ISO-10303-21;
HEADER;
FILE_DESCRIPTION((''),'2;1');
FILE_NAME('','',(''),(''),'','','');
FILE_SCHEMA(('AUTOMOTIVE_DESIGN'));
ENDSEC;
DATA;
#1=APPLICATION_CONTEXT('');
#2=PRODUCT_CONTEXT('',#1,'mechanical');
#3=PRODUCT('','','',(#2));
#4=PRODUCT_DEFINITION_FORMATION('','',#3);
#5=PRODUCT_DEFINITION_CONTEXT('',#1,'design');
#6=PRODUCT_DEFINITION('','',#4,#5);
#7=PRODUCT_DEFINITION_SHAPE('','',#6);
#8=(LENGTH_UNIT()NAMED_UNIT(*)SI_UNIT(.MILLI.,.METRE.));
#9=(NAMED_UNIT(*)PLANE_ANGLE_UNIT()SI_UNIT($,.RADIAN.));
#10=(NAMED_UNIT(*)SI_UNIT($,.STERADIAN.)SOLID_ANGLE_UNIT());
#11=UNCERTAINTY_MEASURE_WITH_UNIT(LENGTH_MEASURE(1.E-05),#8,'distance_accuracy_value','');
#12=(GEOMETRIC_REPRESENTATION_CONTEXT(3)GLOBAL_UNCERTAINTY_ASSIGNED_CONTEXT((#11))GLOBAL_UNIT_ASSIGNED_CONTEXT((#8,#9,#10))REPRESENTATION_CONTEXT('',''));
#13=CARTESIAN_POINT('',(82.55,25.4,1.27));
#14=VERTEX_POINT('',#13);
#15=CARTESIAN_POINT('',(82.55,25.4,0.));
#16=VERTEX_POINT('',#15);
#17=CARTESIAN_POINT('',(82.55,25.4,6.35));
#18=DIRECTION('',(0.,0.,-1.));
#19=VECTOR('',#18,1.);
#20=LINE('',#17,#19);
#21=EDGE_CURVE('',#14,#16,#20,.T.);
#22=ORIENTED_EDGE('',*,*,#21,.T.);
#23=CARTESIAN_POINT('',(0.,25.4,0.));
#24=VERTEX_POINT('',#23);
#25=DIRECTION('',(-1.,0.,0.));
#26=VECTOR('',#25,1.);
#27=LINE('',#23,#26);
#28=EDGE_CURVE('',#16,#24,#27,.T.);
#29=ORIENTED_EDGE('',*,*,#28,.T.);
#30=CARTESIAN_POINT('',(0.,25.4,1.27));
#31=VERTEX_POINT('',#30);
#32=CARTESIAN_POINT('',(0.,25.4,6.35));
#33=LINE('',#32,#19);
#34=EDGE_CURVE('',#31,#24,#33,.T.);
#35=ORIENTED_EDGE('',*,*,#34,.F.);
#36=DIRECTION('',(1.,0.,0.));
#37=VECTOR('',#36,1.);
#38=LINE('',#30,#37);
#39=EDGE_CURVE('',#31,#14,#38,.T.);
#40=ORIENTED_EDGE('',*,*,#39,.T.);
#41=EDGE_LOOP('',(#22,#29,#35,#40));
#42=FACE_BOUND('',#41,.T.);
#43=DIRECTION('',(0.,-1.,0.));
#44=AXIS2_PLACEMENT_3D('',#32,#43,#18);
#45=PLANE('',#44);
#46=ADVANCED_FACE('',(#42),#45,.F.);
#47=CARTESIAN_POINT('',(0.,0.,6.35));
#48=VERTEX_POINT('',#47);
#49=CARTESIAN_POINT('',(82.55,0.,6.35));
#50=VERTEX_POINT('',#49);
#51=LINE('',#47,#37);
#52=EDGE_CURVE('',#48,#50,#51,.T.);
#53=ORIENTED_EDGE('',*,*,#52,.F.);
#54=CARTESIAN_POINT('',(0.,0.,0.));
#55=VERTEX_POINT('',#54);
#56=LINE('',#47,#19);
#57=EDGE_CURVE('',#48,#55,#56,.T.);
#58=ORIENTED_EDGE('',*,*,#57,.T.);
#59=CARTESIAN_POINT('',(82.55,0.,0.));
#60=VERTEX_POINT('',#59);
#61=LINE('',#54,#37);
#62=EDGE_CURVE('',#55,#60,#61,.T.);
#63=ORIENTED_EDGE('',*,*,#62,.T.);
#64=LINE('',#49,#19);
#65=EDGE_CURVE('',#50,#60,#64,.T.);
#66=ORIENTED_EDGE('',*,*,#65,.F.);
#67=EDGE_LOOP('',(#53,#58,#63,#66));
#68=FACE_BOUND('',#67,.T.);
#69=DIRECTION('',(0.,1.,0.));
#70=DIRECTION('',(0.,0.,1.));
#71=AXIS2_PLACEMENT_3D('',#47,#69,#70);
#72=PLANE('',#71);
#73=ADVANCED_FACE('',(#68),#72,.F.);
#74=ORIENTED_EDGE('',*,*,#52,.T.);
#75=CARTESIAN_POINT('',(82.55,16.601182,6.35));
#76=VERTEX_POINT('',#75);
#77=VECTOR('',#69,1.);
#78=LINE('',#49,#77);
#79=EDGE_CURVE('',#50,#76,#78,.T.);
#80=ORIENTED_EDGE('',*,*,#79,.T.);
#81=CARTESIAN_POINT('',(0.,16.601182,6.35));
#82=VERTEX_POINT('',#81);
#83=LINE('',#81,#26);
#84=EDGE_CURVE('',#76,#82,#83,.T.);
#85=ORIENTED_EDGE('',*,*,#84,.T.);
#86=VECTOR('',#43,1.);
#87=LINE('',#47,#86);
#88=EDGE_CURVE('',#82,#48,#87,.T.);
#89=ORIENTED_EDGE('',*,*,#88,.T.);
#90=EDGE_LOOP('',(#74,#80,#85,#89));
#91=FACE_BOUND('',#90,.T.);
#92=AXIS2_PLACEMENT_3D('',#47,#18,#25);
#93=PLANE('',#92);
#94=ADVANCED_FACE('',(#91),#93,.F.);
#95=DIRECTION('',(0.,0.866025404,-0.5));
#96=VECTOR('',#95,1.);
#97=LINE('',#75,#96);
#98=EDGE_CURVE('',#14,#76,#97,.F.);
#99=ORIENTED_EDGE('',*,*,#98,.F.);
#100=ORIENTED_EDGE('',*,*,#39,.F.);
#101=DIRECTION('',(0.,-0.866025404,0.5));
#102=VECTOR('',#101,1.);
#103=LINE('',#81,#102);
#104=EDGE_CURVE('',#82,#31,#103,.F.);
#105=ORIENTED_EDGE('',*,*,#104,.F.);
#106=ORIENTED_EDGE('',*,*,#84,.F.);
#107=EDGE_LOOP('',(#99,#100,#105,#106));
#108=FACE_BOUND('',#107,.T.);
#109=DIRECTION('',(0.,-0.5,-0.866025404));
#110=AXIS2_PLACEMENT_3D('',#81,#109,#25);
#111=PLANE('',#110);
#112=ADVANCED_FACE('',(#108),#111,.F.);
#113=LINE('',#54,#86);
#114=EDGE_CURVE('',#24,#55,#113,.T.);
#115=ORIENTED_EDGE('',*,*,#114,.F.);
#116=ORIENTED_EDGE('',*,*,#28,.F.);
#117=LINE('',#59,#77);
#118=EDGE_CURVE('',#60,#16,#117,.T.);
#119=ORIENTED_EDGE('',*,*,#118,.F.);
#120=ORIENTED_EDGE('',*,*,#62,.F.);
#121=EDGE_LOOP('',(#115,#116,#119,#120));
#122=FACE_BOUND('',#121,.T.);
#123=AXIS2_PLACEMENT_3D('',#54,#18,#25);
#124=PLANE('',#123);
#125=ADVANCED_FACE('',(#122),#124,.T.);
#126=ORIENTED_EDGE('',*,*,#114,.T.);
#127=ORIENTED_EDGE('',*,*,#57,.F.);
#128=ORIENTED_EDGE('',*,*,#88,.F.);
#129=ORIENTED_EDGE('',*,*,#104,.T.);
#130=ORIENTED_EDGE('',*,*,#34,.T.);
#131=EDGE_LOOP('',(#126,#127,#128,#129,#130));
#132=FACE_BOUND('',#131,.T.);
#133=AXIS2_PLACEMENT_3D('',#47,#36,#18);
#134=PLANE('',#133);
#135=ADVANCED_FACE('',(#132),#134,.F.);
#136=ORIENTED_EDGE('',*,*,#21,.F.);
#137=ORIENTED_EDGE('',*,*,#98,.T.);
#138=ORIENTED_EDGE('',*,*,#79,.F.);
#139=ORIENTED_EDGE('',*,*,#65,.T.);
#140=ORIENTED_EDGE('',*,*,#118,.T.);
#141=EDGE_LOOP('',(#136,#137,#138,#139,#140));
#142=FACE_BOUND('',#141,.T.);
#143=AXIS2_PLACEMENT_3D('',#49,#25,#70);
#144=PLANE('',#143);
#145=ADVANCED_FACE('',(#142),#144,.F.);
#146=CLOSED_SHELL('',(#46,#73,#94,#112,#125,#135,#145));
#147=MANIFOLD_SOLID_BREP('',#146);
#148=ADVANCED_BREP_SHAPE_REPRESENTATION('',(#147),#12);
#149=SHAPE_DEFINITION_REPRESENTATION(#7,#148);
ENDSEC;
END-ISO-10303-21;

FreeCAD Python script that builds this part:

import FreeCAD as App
import Part
import Sketcher

V = App.Vector
Q = App.Units.Quantity


def edges_at(feature, points):
    """Names of the edges that pass closest to the given points."""
    edges = feature.Shape.Edges
    near = lambda p: min(range(len(edges)), key=lambda i: edges[i].distToShape(Part.Vertex(*p))[0])
    return sorted({f"Edge{near(p) + 1}" for p in points})


def add_polygon(sketch, points):
    """Adds a closed chain of lines whose ends are joined by coincident constraints."""
    first, n = sketch.GeometryCount, len(points)
    for a, b in zip(points, points[1:] + points[:1]):
        sketch.addGeometry(Part.LineSegment(App.Vector(*a, 0), App.Vector(*b, 0)), False)
    for i in range(n):
        sketch.addConstraint(Sketcher.Constraint("Coincident", first + i, 2, first + (i + 1) % n, 1))

doc = App.newDocument("Part")
body = doc.addObject("PartDesign::Body", "Body")

# Sketch on XY plane
sketch1 = doc.addObject("Sketcher::SketchObject", "Sketch")
body.addObject(sketch1)
sketch1.AttachmentSupport = (doc.XY_Plane, [""])
sketch1.MapMode = "FlatFace"
add_polygon(sketch1, [(0, 25), (0, 0), (83, 0), (83, 25)])  # lines 0-3
sketch1.addConstraint([
    Sketcher.Constraint("Vertical", 0),
    Sketcher.Constraint("Horizontal", 1),
    Sketcher.Constraint("Vertical", 2),
    Sketcher.Constraint("Horizontal", 3),
    Sketcher.Constraint("Coincident", 0, 2, -1, 1),
    Sketcher.Constraint("DistanceY", 0, 2, 0, 1, Q("1 in")),
    Sketcher.Constraint("DistanceX", 1, 1, 1, 2, Q("3.25 in")),
])
pad1 = doc.addObject("PartDesign::Pad", "Pad")
body.addObject(pad1)
pad1.Profile = sketch1
pad1.Length = Q("0.25 in")
doc.recompute()

chamfer = doc.addObject("PartDesign::Chamfer", "Chamfer")
body.addObject(chamfer)
chamfer.Base = (pad1, edges_at(pad1, [(41.275, 25.4, 6.35)]))
chamfer.ChamferType = "Two distances"
chamfer.Size = Q("0.2 in")
chamfer.Size2 = 8.798818

doc.recompute()
